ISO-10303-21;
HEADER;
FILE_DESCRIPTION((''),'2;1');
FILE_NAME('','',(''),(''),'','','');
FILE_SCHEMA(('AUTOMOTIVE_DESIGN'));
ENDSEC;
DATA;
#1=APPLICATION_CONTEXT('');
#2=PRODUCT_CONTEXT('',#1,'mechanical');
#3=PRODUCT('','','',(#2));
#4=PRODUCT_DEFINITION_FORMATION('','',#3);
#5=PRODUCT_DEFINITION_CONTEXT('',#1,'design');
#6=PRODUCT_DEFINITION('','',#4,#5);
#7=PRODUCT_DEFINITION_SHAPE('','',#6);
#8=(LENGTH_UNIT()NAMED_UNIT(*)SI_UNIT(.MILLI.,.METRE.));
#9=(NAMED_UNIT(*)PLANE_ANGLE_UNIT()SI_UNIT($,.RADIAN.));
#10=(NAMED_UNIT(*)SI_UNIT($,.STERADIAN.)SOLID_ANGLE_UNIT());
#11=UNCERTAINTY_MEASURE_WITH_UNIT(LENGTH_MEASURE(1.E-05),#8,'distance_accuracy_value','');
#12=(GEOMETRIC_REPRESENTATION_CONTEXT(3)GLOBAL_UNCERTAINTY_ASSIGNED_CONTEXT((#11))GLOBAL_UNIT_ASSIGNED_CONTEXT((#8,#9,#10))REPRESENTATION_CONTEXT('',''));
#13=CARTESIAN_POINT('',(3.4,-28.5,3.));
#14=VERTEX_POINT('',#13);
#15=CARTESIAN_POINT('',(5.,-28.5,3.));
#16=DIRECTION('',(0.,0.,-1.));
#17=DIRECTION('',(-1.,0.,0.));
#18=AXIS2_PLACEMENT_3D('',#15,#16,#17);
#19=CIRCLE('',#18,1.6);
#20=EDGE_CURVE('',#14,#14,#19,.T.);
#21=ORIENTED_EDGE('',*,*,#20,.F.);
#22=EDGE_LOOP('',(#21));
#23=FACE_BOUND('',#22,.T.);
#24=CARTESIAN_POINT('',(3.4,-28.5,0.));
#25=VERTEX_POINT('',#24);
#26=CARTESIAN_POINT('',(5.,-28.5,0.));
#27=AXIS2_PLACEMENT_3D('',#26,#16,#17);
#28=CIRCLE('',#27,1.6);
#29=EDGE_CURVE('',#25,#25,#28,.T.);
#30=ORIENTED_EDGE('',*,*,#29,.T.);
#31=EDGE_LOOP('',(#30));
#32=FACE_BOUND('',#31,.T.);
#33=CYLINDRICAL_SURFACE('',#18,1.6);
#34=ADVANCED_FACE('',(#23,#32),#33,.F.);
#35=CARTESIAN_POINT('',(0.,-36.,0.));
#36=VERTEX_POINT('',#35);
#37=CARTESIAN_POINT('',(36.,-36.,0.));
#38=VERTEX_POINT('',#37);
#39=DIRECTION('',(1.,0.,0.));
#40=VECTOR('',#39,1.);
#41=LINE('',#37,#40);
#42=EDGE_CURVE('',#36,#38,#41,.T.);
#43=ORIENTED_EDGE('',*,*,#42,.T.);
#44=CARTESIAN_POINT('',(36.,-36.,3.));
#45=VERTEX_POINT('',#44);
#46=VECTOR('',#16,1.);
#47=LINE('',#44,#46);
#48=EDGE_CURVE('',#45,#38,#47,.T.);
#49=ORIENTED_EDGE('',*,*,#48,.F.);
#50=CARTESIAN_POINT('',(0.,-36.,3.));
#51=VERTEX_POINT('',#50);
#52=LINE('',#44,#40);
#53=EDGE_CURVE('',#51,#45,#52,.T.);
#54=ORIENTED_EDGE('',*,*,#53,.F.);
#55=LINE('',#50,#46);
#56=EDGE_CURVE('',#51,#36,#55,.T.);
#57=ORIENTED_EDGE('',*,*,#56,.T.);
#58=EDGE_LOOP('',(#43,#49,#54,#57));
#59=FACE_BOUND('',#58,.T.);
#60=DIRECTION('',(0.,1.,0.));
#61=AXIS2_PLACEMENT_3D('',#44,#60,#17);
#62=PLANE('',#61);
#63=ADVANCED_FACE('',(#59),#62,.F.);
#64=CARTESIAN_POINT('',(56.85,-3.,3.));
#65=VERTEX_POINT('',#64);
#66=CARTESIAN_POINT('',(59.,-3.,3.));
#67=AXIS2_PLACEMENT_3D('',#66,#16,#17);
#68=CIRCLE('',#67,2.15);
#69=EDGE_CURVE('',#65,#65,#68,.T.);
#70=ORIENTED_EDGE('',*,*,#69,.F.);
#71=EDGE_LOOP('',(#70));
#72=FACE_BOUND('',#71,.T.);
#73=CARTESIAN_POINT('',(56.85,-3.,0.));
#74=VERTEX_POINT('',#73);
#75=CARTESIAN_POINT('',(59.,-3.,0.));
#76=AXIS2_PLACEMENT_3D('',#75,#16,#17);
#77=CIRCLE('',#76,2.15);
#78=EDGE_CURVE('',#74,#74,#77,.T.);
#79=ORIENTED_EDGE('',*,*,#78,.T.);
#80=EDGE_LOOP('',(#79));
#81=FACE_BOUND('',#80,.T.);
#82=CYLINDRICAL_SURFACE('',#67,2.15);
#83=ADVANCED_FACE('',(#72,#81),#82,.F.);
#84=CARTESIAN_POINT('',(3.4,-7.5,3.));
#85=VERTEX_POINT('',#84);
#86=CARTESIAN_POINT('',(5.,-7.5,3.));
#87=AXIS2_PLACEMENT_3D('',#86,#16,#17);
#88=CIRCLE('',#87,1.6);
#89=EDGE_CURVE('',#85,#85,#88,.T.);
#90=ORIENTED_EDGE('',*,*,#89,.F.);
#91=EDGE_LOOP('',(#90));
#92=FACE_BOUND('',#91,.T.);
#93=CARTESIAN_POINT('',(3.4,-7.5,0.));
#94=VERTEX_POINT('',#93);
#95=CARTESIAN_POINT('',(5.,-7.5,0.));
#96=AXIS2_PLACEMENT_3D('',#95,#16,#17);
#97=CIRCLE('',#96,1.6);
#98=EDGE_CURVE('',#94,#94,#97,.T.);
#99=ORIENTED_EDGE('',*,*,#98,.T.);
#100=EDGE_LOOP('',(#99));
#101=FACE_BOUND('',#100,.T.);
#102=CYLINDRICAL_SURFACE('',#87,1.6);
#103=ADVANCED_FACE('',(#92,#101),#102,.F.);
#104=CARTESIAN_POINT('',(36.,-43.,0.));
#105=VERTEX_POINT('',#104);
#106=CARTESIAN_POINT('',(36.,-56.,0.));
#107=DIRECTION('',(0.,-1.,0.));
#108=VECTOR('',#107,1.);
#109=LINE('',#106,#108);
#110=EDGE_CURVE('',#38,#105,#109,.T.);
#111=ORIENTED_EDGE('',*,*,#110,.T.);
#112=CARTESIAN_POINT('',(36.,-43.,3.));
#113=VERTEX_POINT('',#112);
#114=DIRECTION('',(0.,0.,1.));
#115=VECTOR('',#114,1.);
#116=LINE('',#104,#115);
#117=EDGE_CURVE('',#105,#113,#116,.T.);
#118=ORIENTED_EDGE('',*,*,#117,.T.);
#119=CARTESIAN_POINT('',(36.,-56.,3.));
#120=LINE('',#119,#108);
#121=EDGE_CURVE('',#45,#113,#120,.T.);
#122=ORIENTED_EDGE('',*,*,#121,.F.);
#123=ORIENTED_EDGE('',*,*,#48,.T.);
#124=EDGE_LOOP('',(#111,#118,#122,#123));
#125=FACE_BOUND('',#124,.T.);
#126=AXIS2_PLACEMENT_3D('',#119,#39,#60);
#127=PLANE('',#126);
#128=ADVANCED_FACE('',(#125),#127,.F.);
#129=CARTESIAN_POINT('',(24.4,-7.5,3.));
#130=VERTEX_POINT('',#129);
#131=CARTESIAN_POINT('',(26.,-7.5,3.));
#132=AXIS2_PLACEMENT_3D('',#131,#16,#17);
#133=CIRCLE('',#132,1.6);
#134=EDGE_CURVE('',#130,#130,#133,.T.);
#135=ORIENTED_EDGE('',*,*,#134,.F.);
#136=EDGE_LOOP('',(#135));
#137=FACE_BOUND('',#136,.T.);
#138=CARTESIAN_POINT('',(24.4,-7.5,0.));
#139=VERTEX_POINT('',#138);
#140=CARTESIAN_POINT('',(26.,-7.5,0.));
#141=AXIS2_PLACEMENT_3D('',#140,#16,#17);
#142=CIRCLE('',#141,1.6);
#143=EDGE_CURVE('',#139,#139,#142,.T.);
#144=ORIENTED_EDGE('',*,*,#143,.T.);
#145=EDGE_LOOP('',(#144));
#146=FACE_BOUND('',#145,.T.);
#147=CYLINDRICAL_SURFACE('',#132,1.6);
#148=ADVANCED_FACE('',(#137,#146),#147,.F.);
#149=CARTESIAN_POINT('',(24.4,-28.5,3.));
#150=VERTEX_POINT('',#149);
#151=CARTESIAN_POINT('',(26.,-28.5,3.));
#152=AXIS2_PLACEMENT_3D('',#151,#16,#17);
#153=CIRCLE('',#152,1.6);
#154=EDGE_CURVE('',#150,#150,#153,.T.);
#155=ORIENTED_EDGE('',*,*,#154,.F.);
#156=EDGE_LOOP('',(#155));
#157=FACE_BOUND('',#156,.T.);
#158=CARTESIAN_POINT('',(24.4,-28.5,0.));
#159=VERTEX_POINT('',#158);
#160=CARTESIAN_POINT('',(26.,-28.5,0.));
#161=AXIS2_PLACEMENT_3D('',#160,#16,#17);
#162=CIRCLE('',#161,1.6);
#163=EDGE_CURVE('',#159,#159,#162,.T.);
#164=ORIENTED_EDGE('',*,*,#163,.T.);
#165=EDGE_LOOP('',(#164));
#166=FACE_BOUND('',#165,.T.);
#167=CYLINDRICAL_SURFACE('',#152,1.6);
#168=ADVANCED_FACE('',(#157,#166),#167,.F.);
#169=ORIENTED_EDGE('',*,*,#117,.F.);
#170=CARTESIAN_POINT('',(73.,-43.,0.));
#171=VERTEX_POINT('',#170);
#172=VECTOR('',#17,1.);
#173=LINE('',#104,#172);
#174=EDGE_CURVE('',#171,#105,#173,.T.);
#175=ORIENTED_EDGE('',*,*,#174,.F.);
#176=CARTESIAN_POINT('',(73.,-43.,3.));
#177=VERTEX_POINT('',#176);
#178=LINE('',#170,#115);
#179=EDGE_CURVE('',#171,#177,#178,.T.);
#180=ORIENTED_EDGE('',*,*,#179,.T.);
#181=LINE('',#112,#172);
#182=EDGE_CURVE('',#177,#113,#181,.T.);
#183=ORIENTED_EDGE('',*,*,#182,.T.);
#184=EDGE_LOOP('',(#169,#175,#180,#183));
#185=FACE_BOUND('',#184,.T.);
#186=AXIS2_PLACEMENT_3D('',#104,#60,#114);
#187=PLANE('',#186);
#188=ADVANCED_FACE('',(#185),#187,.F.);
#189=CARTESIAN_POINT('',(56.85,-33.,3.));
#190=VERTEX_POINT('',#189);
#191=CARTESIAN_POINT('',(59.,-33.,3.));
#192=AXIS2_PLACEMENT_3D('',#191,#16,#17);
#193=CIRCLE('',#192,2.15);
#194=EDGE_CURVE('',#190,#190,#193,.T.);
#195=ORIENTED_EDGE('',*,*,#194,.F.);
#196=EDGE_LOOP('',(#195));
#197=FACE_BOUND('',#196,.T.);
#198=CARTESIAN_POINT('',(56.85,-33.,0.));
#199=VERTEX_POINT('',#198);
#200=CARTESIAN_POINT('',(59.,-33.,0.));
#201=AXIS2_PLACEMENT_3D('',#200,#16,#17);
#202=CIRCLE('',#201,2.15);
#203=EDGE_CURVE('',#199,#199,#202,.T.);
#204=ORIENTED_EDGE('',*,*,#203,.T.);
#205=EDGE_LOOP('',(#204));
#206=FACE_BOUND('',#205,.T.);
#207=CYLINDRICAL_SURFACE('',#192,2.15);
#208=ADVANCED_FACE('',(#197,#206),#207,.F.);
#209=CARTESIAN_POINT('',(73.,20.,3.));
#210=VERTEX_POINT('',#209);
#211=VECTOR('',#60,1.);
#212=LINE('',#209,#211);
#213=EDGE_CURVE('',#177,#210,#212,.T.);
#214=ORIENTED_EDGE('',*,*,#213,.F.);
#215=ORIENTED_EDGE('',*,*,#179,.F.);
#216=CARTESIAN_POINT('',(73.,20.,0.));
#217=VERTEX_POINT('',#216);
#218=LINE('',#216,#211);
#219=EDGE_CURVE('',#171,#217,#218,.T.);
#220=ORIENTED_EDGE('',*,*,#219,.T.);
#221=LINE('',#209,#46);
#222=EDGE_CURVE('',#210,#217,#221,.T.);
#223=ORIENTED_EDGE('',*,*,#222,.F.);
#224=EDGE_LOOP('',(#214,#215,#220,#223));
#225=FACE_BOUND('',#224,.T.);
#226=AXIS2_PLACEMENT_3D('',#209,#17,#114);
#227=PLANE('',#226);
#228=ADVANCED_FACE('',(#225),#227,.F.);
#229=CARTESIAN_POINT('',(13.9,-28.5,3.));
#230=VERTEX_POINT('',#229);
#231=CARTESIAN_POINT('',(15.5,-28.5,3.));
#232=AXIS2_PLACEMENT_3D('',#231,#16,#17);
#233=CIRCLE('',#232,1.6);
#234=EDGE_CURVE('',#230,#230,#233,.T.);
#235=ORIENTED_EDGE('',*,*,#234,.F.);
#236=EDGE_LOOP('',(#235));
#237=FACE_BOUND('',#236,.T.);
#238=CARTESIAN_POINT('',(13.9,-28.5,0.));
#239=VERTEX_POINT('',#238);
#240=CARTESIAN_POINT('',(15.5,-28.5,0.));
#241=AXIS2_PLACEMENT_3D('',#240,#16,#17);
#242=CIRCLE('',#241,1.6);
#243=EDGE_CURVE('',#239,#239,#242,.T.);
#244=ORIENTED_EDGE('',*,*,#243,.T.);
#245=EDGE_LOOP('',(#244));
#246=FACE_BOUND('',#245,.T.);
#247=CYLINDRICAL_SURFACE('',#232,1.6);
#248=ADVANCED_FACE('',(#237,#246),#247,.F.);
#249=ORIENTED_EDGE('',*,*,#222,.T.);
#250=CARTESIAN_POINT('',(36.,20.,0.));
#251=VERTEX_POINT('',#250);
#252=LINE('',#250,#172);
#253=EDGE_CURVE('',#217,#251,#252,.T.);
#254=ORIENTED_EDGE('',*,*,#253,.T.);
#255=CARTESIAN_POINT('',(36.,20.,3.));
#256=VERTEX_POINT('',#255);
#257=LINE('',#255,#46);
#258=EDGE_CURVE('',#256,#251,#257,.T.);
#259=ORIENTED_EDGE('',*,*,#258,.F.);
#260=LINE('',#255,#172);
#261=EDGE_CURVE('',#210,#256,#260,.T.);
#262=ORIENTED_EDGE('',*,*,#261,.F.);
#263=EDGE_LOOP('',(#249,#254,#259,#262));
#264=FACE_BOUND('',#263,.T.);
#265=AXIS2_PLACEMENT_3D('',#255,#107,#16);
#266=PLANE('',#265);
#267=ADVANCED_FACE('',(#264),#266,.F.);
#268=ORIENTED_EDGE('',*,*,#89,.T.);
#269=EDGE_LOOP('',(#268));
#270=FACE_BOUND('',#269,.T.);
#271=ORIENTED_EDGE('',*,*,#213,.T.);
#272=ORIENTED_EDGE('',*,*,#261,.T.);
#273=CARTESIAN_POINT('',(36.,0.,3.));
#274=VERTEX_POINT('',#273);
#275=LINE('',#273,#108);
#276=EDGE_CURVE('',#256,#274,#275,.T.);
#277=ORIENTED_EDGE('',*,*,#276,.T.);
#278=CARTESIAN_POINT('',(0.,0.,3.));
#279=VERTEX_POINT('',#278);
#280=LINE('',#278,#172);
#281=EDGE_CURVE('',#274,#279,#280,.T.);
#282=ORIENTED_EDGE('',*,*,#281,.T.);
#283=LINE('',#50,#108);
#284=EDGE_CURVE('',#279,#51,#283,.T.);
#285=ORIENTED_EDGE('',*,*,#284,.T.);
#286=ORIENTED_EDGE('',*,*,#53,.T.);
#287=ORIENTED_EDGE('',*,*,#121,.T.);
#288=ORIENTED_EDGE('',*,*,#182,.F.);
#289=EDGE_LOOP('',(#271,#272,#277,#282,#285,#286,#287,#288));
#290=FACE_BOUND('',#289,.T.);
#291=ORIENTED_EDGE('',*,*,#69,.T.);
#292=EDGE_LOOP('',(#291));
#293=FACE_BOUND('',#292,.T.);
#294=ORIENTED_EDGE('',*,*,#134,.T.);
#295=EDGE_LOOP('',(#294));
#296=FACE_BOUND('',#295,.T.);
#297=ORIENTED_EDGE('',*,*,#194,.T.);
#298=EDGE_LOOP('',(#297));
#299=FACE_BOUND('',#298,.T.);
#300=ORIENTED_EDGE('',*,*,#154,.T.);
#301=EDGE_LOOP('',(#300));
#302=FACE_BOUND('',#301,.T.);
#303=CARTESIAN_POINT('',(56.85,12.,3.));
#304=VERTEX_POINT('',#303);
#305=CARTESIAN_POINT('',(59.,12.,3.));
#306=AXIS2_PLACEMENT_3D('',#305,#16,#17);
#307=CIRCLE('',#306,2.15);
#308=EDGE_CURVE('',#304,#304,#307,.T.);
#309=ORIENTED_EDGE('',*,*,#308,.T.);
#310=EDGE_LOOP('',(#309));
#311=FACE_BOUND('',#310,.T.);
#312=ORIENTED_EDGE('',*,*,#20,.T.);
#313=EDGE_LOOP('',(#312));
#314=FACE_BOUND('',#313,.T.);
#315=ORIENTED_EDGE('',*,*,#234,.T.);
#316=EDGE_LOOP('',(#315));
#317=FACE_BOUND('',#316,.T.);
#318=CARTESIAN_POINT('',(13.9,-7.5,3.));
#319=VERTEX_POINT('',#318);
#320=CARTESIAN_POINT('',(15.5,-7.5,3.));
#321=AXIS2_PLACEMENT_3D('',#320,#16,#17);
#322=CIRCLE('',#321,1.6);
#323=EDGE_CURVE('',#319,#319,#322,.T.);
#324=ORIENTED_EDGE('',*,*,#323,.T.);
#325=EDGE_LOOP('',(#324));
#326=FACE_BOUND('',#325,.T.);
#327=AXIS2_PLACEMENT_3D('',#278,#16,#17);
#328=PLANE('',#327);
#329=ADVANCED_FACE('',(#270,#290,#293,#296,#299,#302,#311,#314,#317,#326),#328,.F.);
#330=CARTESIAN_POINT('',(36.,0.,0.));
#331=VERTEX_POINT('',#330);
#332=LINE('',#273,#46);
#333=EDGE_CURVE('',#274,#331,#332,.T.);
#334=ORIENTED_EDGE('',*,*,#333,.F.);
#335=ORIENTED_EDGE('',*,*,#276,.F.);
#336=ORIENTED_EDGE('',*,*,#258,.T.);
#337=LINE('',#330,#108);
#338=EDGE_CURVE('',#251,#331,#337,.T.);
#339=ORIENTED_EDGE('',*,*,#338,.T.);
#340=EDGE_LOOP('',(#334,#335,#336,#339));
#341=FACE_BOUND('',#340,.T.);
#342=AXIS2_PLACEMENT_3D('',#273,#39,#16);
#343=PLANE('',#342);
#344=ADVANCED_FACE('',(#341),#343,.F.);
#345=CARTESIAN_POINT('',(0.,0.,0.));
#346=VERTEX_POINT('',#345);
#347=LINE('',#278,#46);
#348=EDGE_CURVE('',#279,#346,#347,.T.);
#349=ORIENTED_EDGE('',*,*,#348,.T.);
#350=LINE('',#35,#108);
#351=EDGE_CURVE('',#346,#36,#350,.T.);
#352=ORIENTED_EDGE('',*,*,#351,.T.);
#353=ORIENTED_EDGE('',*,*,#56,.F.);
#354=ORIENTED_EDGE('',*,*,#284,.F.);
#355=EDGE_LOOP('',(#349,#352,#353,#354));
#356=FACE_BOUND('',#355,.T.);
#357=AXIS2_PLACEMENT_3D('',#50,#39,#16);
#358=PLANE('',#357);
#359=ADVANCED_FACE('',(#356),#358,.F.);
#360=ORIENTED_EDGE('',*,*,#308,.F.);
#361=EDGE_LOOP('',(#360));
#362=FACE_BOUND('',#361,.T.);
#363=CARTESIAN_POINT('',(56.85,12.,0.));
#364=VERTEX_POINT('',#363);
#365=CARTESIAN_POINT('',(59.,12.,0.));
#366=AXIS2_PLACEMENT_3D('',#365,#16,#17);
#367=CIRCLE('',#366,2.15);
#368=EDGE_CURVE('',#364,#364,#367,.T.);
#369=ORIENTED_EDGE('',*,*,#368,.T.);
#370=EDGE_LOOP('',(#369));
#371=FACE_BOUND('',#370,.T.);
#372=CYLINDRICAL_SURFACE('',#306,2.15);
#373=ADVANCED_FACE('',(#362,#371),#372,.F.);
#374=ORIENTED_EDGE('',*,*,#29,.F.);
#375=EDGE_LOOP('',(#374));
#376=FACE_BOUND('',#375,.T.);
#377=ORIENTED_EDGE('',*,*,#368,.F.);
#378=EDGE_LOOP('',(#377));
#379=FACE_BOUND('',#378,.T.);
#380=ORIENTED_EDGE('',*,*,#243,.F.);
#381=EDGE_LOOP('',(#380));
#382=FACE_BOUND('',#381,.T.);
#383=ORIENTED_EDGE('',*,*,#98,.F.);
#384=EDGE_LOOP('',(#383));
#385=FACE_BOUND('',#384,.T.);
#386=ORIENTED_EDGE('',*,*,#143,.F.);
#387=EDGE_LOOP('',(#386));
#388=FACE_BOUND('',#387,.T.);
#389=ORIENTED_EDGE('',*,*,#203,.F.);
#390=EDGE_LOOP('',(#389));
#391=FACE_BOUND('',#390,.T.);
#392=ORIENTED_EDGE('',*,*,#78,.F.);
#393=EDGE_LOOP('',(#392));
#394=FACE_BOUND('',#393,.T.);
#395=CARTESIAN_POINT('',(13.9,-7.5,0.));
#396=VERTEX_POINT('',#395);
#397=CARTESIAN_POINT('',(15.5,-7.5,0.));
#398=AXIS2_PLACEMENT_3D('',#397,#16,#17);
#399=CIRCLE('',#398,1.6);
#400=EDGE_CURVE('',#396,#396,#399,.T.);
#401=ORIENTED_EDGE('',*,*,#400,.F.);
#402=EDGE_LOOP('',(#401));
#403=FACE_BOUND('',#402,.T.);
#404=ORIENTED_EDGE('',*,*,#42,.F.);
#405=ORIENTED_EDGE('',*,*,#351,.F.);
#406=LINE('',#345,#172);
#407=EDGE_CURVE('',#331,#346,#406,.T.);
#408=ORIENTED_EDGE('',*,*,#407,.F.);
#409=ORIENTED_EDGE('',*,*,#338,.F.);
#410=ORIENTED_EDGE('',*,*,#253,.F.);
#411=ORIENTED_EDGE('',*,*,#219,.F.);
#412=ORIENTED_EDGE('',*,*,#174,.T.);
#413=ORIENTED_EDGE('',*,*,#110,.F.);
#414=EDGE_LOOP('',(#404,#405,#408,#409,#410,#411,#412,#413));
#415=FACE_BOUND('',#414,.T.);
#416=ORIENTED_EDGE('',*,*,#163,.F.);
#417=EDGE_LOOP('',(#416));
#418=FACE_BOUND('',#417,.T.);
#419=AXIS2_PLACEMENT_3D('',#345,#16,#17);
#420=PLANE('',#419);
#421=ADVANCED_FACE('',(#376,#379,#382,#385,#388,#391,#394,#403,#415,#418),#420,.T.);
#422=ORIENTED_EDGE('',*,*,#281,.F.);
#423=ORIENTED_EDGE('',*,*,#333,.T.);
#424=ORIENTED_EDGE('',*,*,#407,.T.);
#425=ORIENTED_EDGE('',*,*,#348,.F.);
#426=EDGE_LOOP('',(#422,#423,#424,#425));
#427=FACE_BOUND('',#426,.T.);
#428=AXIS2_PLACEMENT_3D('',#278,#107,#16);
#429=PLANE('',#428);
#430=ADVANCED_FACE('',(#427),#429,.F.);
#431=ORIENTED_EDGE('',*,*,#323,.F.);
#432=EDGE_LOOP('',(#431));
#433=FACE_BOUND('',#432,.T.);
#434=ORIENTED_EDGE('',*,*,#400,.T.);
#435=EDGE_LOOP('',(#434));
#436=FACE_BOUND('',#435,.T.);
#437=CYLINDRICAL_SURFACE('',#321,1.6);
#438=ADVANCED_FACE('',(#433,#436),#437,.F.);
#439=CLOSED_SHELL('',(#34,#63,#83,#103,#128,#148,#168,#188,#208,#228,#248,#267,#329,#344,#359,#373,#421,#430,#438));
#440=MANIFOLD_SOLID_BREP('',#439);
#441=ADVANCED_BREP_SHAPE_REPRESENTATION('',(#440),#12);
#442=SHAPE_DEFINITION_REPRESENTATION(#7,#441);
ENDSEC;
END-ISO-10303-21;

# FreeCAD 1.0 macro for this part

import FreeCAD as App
import Part
import Sketcher
from FreeCAD import Vector
Q = App.Units.Quantity

doc = App.newDocument("Part")
body = doc.addObject("PartDesign::Body", "Body")

# Sketch on XY plane
sketch1 = body.newObject("Sketcher::SketchObject", "Sketch")
sketch1.AttachmentSupport = (doc.getObject("XY_Plane"), [""])
sketch1.MapMode = "FlatFace"
sketch1.addGeometry([
    Part.LineSegment(Vector(36, 0, 0), Vector(0, 0, 0)),  # 0
    Part.LineSegment(Vector(0, 0, 0), Vector(0, -36, 0)),  # 1
    Part.LineSegment(Vector(0, -36, 0), Vector(36, -36, 0)),  # 2
    Part.LineSegment(Vector(36, -36, 0), Vector(36, -56, 0)),  # 3
    Part.LineSegment(Vector(36, -56, 0), Vector(73, -56, 0)),  # 4
    Part.LineSegment(Vector(73, -56, 0), Vector(73, 20, 0)),  # 5
    Part.LineSegment(Vector(73, 20, 0), Vector(36, 20, 0)),  # 6
    Part.LineSegment(Vector(36, 20, 0), Vector(36, 0, 0)),  # 7
], False)
sketch1.addConstraint([
    Sketcher.Constraint("Coincident", 0, 2, 1, 1),
    Sketcher.Constraint("Coincident", 1, 2, 2, 1),
    Sketcher.Constraint("Coincident", 2, 2, 3, 1),
    Sketcher.Constraint("Coincident", 3, 2, 4, 1),
    Sketcher.Constraint("Coincident", 4, 2, 5, 1),
    Sketcher.Constraint("Coincident", 5, 2, 6, 1),
    Sketcher.Constraint("Coincident", 6, 2, 7, 1),
    Sketcher.Constraint("Coincident", 7, 2, 0, 1),
    Sketcher.Constraint("Horizontal", 0),
    Sketcher.Constraint("Vertical", 1),
    Sketcher.Constraint("Horizontal", 2),
    Sketcher.Constraint("Vertical", 3),
    Sketcher.Constraint("Horizontal", 4),
    Sketcher.Constraint("Vertical", 5),
    Sketcher.Constraint("Horizontal", 6),
    Sketcher.Constraint("Vertical", 7),
    Sketcher.Constraint("Coincident", 0, 2, -1, 1),
    Sketcher.Constraint("Vertical", 3, 2, 6, 2),
    Sketcher.Constraint("Equal", 2, 1),
    Sketcher.Constraint("Equal", 3, 7),
    Sketcher.Constraint("DistanceX", 0, 2, 0, 1, Q("36 mm")),
    Sketcher.Constraint("DistanceX", 4, 1, 4, 2, Q("37 mm")),
    Sketcher.Constraint("DistanceY", 3, 2, 3, 1, Q("20 mm")),
])
pad1 = body.newObject("PartDesign::Pad", "Pad")
pad1.Profile = sketch1
pad1.Length = 3

# Sketch on XY plane
sketch2 = body.newObject("Sketcher::SketchObject", "Sketch001")
sketch2.AttachmentSupport = (doc.getObject("XY_Plane"), [""])
sketch2.MapMode = "FlatFace"
sketch2.addGeometry([
    Part.Circle(Vector(26, -7.5, 0), Vector(0, 0, 1), 1.6),  # 0
    Part.Circle(Vector(26, -28.5, 0), Vector(0, 0, 1), 1.6),  # 1
    Part.Circle(Vector(5, -7.5, 0), Vector(0, 0, 1), 1.6),  # 2
    Part.Circle(Vector(5, -28.5, 0), Vector(0, 0, 1), 1.6),  # 3
    Part.Circle(Vector(15.5, -28.5, 0), Vector(0, 0, 1), 1.6),  # 4
    Part.Circle(Vector(15.5, -7.5, 0), Vector(0, 0, 1), 1.6),  # 5
], False)
sketch2.addConstraint([
    Sketcher.Constraint("Equal", 0, 1),
    Sketcher.Constraint("Equal", 1, 2),
    Sketcher.Constraint("Equal", 2, 3),
    Sketcher.Constraint("Equal", 3, 4),
    Sketcher.Constraint("Equal", 4, 5),
    Sketcher.Constraint("Horizontal", 0, 3, 2, 3),
    Sketcher.Constraint("Horizontal", 1, 3, 3, 3),
    Sketcher.Constraint("Horizontal", 3, 3, 4, 3),
    Sketcher.Constraint("Horizontal", 2, 3, 5, 3),
    Sketcher.Constraint("Vertical", 0, 3, 1, 3),
    Sketcher.Constraint("Vertical", 2, 3, 3, 3),
    Sketcher.Constraint("Vertical", 4, 3, 5, 3),
    Sketcher.Constraint("Diameter", 0, Q("3.2 mm")),
    Sketcher.Constraint("DistanceX", -1, 1, 0, 3, Q("26 mm")),
    Sketcher.Constraint("DistanceX", -1, 1, 2, 3, Q("5 mm")),
    Sketcher.Constraint("DistanceY", 1, 3, 0, 3, Q("21 mm")),
    Sketcher.Constraint("DistanceY", 0, 3, -1, 1, Q("7.5 mm")),
    Sketcher.Constraint("DistanceX", -1, 1, 4, 3, Q("15.5 mm")),
])
pocket1 = body.newObject("PartDesign::Pocket", "Pocket")
pocket1.Profile = sketch2
pocket1.Type = "ThroughAll"
pocket1.Reversed = True

# Sketch on XY plane
sketch3 = body.newObject("Sketcher::SketchObject", "Sketch002")
sketch3.AttachmentSupport = (doc.getObject("XY_Plane"), [""])
sketch3.MapMode = "FlatFace"
sketch3.addGeometry([
    Part.Circle(Vector(59, -33, 0), Vector(0, 0, 1), 2.1),
    Part.Circle(Vector(59, -48, 0), Vector(0, 0, 1), 2.1),
], False)
sketch3.addConstraint([
    Sketcher.Constraint("Equal", 0, 1),
    Sketcher.Constraint("Vertical", 0, 3, 1, 3),
    Sketcher.Constraint("Diameter", 0, Q("4.3 mm")),
    Sketcher.Constraint("DistanceX", -1, 1, 0, 3, Q("59 mm")),
    Sketcher.Constraint("DistanceY", 0, 3, -1, 1, Q("33 mm")),
    Sketcher.Constraint("DistanceY", 1, 3, -1, 1, Q("48 mm")),
])
pocket2 = body.newObject("PartDesign::Pocket", "Pocket001")
pocket2.Profile = sketch3
pocket2.Type = "ThroughAll"
pocket2.Reversed = True

# Sketch on XY plane
sketch4 = body.newObject("Sketcher::SketchObject", "Sketch003")
sketch4.AttachmentSupport = (doc.getObject("XY_Plane"), [""])
sketch4.MapMode = "FlatFace"
sketch4.addGeometry([
    Part.Circle(Vector(59, 12, 0), Vector(0, 0, 1), 2.1),
    Part.Circle(Vector(59, -3, 0), Vector(0, 0, 1), 2.1),
], False)
sketch4.addConstraint([
    Sketcher.Constraint("Equal", 0, 1),
    Sketcher.Constraint("Vertical", 0, 3, 1, 3),
    Sketcher.Constraint("Diameter", 0, Q("4.3 mm")),
    Sketcher.Constraint("DistanceX", -1, 1, 0, 3, Q("59 mm")),
    Sketcher.Constraint("DistanceY", -1, 1, 0, 3, Q("12 mm")),
    Sketcher.Constraint("DistanceY", 1, 3, -1, 1, Q("3 mm")),
])
pocket3 = body.newObject("PartDesign::Pocket", "Pocket002")
pocket3.Profile = sketch4
pocket3.Type = "ThroughAll"
pocket3.Reversed = True

# Sketch on XY plane
sketch5 = body.newObject("Sketcher::SketchObject", "Sketch004")
sketch5.AttachmentSupport = (doc.getObject("XY_Plane"), [""])
sketch5.MapMode = "FlatFace"
sketch5.AttachmentOffset = App.Placement(Vector(0, 0, 3), App.Rotation())
sketch5.addGeometry([
    Part.LineSegment(Vector(36, -43, 0), Vector(36, -56, 0)),
    Part.LineSegment(Vector(36, -56, 0), Vector(73, -56, 0)),
    Part.LineSegment(Vector(73, -56, 0), Vector(73, -43, 0)),
    Part.LineSegment(Vector(73, -43, 0), Vector(36, -43, 0)),
], False)
sketch5.addConstraint([
    Sketcher.Constraint("Coincident", 0, 2, 1, 1),
    Sketcher.Constraint("Coincident", 1, 2, 2, 1),
    Sketcher.Constraint("Coincident", 2, 2, 3, 1),
    Sketcher.Constraint("Coincident", 3, 2, 0, 1),
    Sketcher.Constraint("Vertical", 0),
    Sketcher.Constraint("Horizontal", 1),
    Sketcher.Constraint("Vertical", 2),
    Sketcher.Constraint("Horizontal", 3),
    Sketcher.Constraint("DistanceX", 1, 1, 1, 2, Q("37 mm")),
    Sketcher.Constraint("DistanceY", 0, 2, 0, 1, Q("13 mm")),
    Sketcher.Constraint("DistanceX", -1, 1, 0, 2, Q("36 mm")),
    Sketcher.Constraint("DistanceY", 0, 2, -1, 1, Q("56 mm")),
])
pocket4 = body.newObject("PartDesign::Pocket", "Pocket003")
pocket4.Profile = sketch5
pocket4.Type = "ThroughAll"

doc.recompute()
